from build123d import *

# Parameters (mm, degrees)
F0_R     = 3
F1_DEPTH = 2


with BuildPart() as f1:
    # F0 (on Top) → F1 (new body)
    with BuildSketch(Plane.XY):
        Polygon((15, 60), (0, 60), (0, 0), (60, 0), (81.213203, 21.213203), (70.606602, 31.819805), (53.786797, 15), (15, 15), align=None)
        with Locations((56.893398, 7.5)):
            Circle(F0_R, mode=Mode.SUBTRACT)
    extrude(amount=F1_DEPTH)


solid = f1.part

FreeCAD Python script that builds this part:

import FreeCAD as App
import Part
import Sketcher
from FreeCAD import Vector
Q = App.Units.Quantity

doc = App.newDocument("Part")
body = doc.addObject("PartDesign::Body", "Body")

# Sketch on XY plane
sketch1 = body.newObject("Sketcher::SketchObject", "Sketch")
sketch1.AttachmentSupport = (doc.getObject("XY_Plane"), [""])
sketch1.MapMode = "FlatFace"
sketch1.addGeometry(Part.LineSegment(Vector(15, 60, 0), Vector(0, 60, 0)), False)
sketch1.addGeometry(Part.LineSegment(Vector(0, 60, 0), Vector(0, 0, 0)), False)
sketch1.addGeometry(Part.LineSegment(Vector(0, 0, 0), Vector(60, 0, 0)), False)
sketch1.addGeometry(Part.LineSegment(Vector(60, 0, 0), Vector(81.213203, 21.213203, 0)), False)
sketch1.addGeometry(Part.LineSegment(Vector(81.213203, 21.213203, 0), Vector(70.606602, 31.819805, 0)), False)
sketch1.addGeometry(Part.LineSegment(Vector(70.606602, 31.819805, 0), Vector(53.786797, 15, 0)), False)
sketch1.addGeometry(Part.LineSegment(Vector(53.786797, 15, 0), Vector(15, 15, 0)), False)
sketch1.addGeometry(Part.LineSegment(Vector(15, 15, 0), Vector(15, 60, 0)), False)
sketch1.addGeometry(Part.Circle(Vector(56.893398, 7.5, 0), Vector(0, 0, 1), 3), False)
sketch1.addConstraint(Sketcher.Constraint("Coincident", 0, 2, 1, 1))
sketch1.addConstraint(Sketcher.Constraint("Coincident", 1, 2, 2, 1))
sketch1.addConstraint(Sketcher.Constraint("Coincident", 2, 2, 3, 1))
sketch1.addConstraint(Sketcher.Constraint("Coincident", 3, 2, 4, 1))
sketch1.addConstraint(Sketcher.Constraint("Coincident", 4, 2, 5, 1))
sketch1.addConstraint(Sketcher.Constraint("Coincident", 5, 2, 6, 1))
sketch1.addConstraint(Sketcher.Constraint("Coincident", 6, 2, 7, 1))
sketch1.addConstraint(Sketcher.Constraint("Coincident", 7, 2, 0, 1))
sketch1.addConstraint(Sketcher.Constraint("Horizontal", 0))
sketch1.addConstraint(Sketcher.Constraint("Vertical", 1))
sketch1.addConstraint(Sketcher.Constraint("Horizontal", 2))
sketch1.addConstraint(Sketcher.Constraint("Horizontal", 6))
sketch1.addConstraint(Sketcher.Constraint("Vertical", 7))
sketch1.addConstraint(Sketcher.Constraint("Coincident", 1, 2, -1, 1))
sketch1.addConstraint(Sketcher.Constraint("Perpendicular", 3, 4))
sketch1.addConstraint(Sketcher.Constraint("Perpendicular", 4, 5))
sketch1.addConstraint(Sketcher.Constraint("Equal", 2, 1))
sketch1.addConstraint(Sketcher.Constraint("Diameter", 8, 6.0))
sketch1.addConstraint(Sketcher.Constraint("DistanceX", 0, 2, 0, 1, 15.0))
sketch1.addConstraint(Sketcher.Constraint("DistanceX", 2, 1, 2, 2, 60.0))
sketch1.addConstraint(Sketcher.Constraint("DistanceY", 7, 1, 7, 2, 45.0))
sketch1.addConstraint(Sketcher.Constraint("Angle", 3, Q("45 deg")))
sketch1.addConstraint(Sketcher.Constraint("Distance", 3, 29.999999))
sketch1.addConstraint(Sketcher.Constraint("Distance", 4, 15.0))
sketch1.addConstraint(Sketcher.Constraint("DistanceY", -1, 1, 8, 3, 7.5))
sketch1.addConstraint(Sketcher.Constraint("DistanceX", 5, 2, 8, 3, 3.106601))
pad1 = body.newObject("PartDesign::Pad", "Pad")
pad1.Profile = sketch1
pad1.Length = 2

doc.recompute()
